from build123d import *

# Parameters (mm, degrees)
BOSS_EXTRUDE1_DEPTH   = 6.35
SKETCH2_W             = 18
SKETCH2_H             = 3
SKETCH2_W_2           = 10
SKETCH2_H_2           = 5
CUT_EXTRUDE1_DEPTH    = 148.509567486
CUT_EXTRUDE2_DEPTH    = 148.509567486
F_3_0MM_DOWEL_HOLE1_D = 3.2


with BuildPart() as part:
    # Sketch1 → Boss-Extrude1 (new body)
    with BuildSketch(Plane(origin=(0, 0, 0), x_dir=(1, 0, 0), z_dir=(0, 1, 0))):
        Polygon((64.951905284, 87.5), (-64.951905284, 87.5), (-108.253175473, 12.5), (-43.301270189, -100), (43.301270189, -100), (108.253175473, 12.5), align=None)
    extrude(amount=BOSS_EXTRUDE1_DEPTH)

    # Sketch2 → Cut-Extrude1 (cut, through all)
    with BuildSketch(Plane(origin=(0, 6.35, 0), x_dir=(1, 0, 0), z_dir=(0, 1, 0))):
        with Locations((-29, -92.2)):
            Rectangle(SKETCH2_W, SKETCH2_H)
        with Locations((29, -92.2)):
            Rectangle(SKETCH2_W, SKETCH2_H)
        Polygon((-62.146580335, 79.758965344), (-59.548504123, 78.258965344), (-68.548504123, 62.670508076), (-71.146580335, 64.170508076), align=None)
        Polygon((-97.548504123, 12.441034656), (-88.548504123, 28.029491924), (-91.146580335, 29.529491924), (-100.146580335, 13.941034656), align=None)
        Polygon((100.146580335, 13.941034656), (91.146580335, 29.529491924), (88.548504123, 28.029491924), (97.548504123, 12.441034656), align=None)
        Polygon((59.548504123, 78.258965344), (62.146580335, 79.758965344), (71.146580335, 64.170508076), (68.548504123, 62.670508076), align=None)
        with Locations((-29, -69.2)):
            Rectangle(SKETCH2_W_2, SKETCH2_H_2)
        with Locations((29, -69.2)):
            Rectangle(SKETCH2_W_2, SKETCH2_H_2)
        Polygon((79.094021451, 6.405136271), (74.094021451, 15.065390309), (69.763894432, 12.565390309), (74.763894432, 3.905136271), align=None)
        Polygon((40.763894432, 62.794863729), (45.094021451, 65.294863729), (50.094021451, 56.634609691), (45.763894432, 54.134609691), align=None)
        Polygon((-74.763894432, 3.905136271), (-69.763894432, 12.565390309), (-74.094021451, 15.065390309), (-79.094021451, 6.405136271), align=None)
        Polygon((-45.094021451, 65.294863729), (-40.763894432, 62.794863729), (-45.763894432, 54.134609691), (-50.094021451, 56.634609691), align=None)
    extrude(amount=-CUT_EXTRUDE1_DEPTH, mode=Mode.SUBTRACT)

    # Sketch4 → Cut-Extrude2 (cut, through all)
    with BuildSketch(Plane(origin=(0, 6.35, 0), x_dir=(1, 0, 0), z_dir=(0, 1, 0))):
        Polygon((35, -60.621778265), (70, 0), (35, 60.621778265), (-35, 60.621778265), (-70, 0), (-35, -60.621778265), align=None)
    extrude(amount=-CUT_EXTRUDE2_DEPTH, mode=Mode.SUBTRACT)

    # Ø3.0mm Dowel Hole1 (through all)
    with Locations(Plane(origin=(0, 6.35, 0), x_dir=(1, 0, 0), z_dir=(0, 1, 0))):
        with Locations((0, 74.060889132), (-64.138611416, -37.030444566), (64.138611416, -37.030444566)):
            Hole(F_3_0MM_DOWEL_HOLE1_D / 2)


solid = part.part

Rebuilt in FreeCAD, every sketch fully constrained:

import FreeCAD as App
import Part
import Sketcher
Q = App.Units.Quantity

doc = App.newDocument("Part")
body = doc.addObject("PartDesign::Body", "Body")

sketch1 = body.newObject("Sketcher::SketchObject", "Sketch")
sketch1.AttachmentSupport = (doc.getObject("XZ_Plane"), [""])
sketch1.MapMode = "FlatFace"
sketch1.addGeometry([
    Part.LineSegment(App.Vector(65, -88, 0), App.Vector(-65, -88, 0)),
    Part.LineSegment(App.Vector(-65, -88, 0), App.Vector(-108, -12, 0)),
    Part.LineSegment(App.Vector(-108, -12, 0), App.Vector(-43, 100, 0)),
    Part.LineSegment(App.Vector(-43, 100, 0), App.Vector(43, 100, 0)),
    Part.LineSegment(App.Vector(43, 100, 0), App.Vector(108, -12, 0)),
    Part.LineSegment(App.Vector(108, -12, 0), App.Vector(65, -88, 0)),
], False)
sketch1.addConstraint([
    Sketcher.Constraint("Coincident", 0, 2, 1, 1),
    Sketcher.Constraint("Coincident", 1, 2, 2, 1),
    Sketcher.Constraint("Coincident", 2, 2, 3, 1),
    Sketcher.Constraint("Coincident", 3, 2, 4, 1),
    Sketcher.Constraint("Coincident", 4, 2, 5, 1),
    Sketcher.Constraint("Coincident", 5, 2, 0, 1),
    Sketcher.Constraint("Horizontal", 0),
    Sketcher.Constraint("Horizontal", 3),
    Sketcher.Constraint("Symmetric", 1, 2, 4, 2, -2),
    Sketcher.Constraint("Parallel", 1, 4),
    Sketcher.Constraint("Parallel", 2, 5),
    Sketcher.Constraint("Equal", 2, 4),
    Sketcher.Constraint("Angle", 1, Q("120 deg")),
    Sketcher.Constraint("DistanceY", -1, 1, 2, 2, 100.0),
    Sketcher.Constraint("DistanceY", 0, 2, 1, 2, 75.0),
    Sketcher.Constraint("DistanceY", 0, 2, -1, 1, 87.5),
    Sketcher.Constraint("DistanceX", 0, 2, 0, 1, 129.903811),
])
pad1 = body.newObject("PartDesign::Pad", "Pad")
pad1.Profile = sketch1
pad1.Length = 6.35
pad1.Reversed = True

sketch2 = body.newObject("Sketcher::SketchObject", "Sketch001")
sketch2.AttachmentSupport = (doc.getObject("XZ_Plane"), [""])
sketch2.MapMode = "FlatFace"
sketch2.AttachmentOffset = App.Placement(App.Vector(0, 0, -6.35), App.Rotation())
sketch2.addGeometry([
    Part.LineSegment(App.Vector(-38, 90.7, 0), App.Vector(-38, 93.7, 0)),
    Part.LineSegment(App.Vector(-38, 93.7, 0), App.Vector(-20, 93.7, 0)),
    Part.LineSegment(App.Vector(-20, 93.7, 0), App.Vector(-20, 90.7, 0)),
    Part.LineSegment(App.Vector(-20, 90.7, 0), App.Vector(-38, 90.7, 0)),
    Part.LineSegment(App.Vector(20, 90.7, 0), App.Vector(20, 93.7, 0)),
    Part.LineSegment(App.Vector(20, 93.7, 0), App.Vector(38, 93.7, 0)),
    Part.LineSegment(App.Vector(38, 93.7, 0), App.Vector(38, 90.7, 0)),
    Part.LineSegment(App.Vector(38, 90.7, 0), App.Vector(20, 90.7, 0)),
    Part.LineSegment(App.Vector(-59.5, -78.3, 0), App.Vector(-62.1, -79.8, 0)),
    Part.LineSegment(App.Vector(-62.1, -79.8, 0), App.Vector(-71.1, -64.2, 0)),
    Part.LineSegment(App.Vector(-71.1, -64.2, 0), App.Vector(-68.5, -62.7, 0)),
    Part.LineSegment(App.Vector(-68.5, -62.7, 0), App.Vector(-59.5, -78.3, 0)),
    Part.LineSegment(App.Vector(-97.5, -12.4, 0), App.Vector(-88.5, -28, 0)),
    Part.LineSegment(App.Vector(-88.5, -28, 0), App.Vector(-91.1, -29.5, 0)),
    Part.LineSegment(App.Vector(-91.1, -29.5, 0), App.Vector(-100.1, -13.9, 0)),
    Part.LineSegment(App.Vector(-100.1, -13.9, 0), App.Vector(-97.5, -12.4, 0)),
    Part.LineSegment(App.Vector(100.1, -13.9, 0), App.Vector(91.1, -29.5, 0)),
    Part.LineSegment(App.Vector(91.1, -29.5, 0), App.Vector(88.5, -28, 0)),
    Part.LineSegment(App.Vector(88.5, -28, 0), App.Vector(97.5, -12.4, 0)),
    Part.LineSegment(App.Vector(97.5, -12.4, 0), App.Vector(100.1, -13.9, 0)),
    Part.LineSegment(App.Vector(62.1, -79.8, 0), App.Vector(59.5, -78.3, 0)),
    Part.LineSegment(App.Vector(59.5, -78.3, 0), App.Vector(68.5, -62.7, 0)),
    Part.LineSegment(App.Vector(68.5, -62.7, 0), App.Vector(71.1, -64.2, 0)),
    Part.LineSegment(App.Vector(71.1, -64.2, 0), App.Vector(62.1, -79.8, 0)),
    Part.LineSegment(App.Vector(-34, 66.7, 0), App.Vector(-34, 71.7, 0)),
    Part.LineSegment(App.Vector(-34, 71.7, 0), App.Vector(-24, 71.7, 0)),
    Part.LineSegment(App.Vector(-24, 71.7, 0), App.Vector(-24, 66.7, 0)),
    Part.LineSegment(App.Vector(-24, 66.7, 0), App.Vector(-34, 66.7, 0)),
    Part.LineSegment(App.Vector(24, 66.7, 0), App.Vector(24, 71.7, 0)),
    Part.LineSegment(App.Vector(24, 71.7, 0), App.Vector(34, 71.7, 0)),
    Part.LineSegment(App.Vector(34, 71.7, 0), App.Vector(34, 66.7, 0)),
    Part.LineSegment(App.Vector(34, 66.7, 0), App.Vector(24, 66.7, 0)),
    Part.LineSegment(App.Vector(79.1, -6.4, 0), App.Vector(74.1, -15.1, 0)),
    Part.LineSegment(App.Vector(74.1, -15.1, 0), App.Vector(69.8, -12.6, 0)),
    Part.LineSegment(App.Vector(69.8, -12.6, 0), App.Vector(74.8, -3.9, 0)),
    Part.LineSegment(App.Vector(74.8, -3.9, 0), App.Vector(79.1, -6.4, 0)),
    Part.LineSegment(App.Vector(45.1, -65.3, 0), App.Vector(40.8, -62.8, 0)),
    Part.LineSegment(App.Vector(40.8, -62.8, 0), App.Vector(45.8, -54.1, 0)),
    Part.LineSegment(App.Vector(45.8, -54.1, 0), App.Vector(50.1, -56.6, 0)),
    Part.LineSegment(App.Vector(50.1, -56.6, 0), App.Vector(45.1, -65.3, 0)),
    Part.LineSegment(App.Vector(-74.8, -3.9, 0), App.Vector(-69.8, -12.6, 0)),
    Part.LineSegment(App.Vector(-69.8, -12.6, 0), App.Vector(-74.1, -15.1, 0)),
    Part.LineSegment(App.Vector(-74.1, -15.1, 0), App.Vector(-79.1, -6.4, 0)),
    Part.LineSegment(App.Vector(-79.1, -6.4, 0), App.Vector(-74.8, -3.9, 0)),
    Part.LineSegment(App.Vector(-40.8, -62.8, 0), App.Vector(-45.1, -65.3, 0)),
    Part.LineSegment(App.Vector(-45.1, -65.3, 0), App.Vector(-50.1, -56.6, 0)),
    Part.LineSegment(App.Vector(-50.1, -56.6, 0), App.Vector(-45.8, -54.1, 0)),
    Part.LineSegment(App.Vector(-45.8, -54.1, 0), App.Vector(-40.8, -62.8, 0)),
], False)
sketch2.addConstraint([
    Sketcher.Constraint("Coincident", 0, 2, 1, 1),
    Sketcher.Constraint("Coincident", 1, 2, 2, 1),
    Sketcher.Constraint("Coincident", 2, 2, 3, 1),
    Sketcher.Constraint("Coincident", 3, 2, 0, 1),
    Sketcher.Constraint("Coincident", 4, 2, 5, 1),
    Sketcher.Constraint("Coincident", 5, 2, 6, 1),
    Sketcher.Constraint("Coincident", 6, 2, 7, 1),
    Sketcher.Constraint("Coincident", 7, 2, 4, 1),
    Sketcher.Constraint("Coincident", 8, 2, 9, 1),
    Sketcher.Constraint("Coincident", 9, 2, 10, 1),
    Sketcher.Constraint("Coincident", 10, 2, 11, 1),
    Sketcher.Constraint("Coincident", 11, 2, 8, 1),
    Sketcher.Constraint("Coincident", 12, 2, 13, 1),
    Sketcher.Constraint("Coincident", 13, 2, 14, 1),
    Sketcher.Constraint("Coincident", 14, 2, 15, 1),
    Sketcher.Constraint("Coincident", 15, 2, 12, 1),
    Sketcher.Constraint("Coincident", 16, 2, 17, 1),
    Sketcher.Constraint("Coincident", 17, 2, 18, 1),
    Sketcher.Constraint("Coincident", 18, 2, 19, 1),
    Sketcher.Constraint("Coincident", 19, 2, 16, 1),
    Sketcher.Constraint("Coincident", 20, 2, 21, 1),
    Sketcher.Constraint("Coincident", 21, 2, 22, 1),
    Sketcher.Constraint("Coincident", 22, 2, 23, 1),
    Sketcher.Constraint("Coincident", 23, 2, 20, 1),
    Sketcher.Constraint("Coincident", 24, 2, 25, 1),
    Sketcher.Constraint("Coincident", 25, 2, 26, 1),
    Sketcher.Constraint("Coincident", 26, 2, 27, 1),
    Sketcher.Constraint("Coincident", 27, 2, 24, 1),
    Sketcher.Constraint("Coincident", 28, 2, 29, 1),
    Sketcher.Constraint("Coincident", 29, 2, 30, 1),
    Sketcher.Constraint("Coincident", 30, 2, 31, 1),
    Sketcher.Constraint("Coincident", 31, 2, 28, 1),
    Sketcher.Constraint("Coincident", 32, 2, 33, 1),
    Sketcher.Constraint("Coincident", 33, 2, 34, 1),
    Sketcher.Constraint("Coincident", 34, 2, 35, 1),
    Sketcher.Constraint("Coincident", 35, 2, 32, 1),
    Sketcher.Constraint("Coincident", 36, 2, 37, 1),
    Sketcher.Constraint("Coincident", 37, 2, 38, 1),
    Sketcher.Constraint("Coincident", 38, 2, 39, 1),
    Sketcher.Constraint("Coincident", 39, 2, 36, 1),
    Sketcher.Constraint("Coincident", 40, 2, 41, 1),
    Sketcher.Constraint("Coincident", 41, 2, 42, 1),
    Sketcher.Constraint("Coincident", 42, 2, 43, 1),
    Sketcher.Constraint("Coincident", 43, 2, 40, 1),
    Sketcher.Constraint("Coincident", 44, 2, 45, 1),
    Sketcher.Constraint("Coincident", 45, 2, 46, 1),
    Sketcher.Constraint("Coincident", 46, 2, 47, 1),
    Sketcher.Constraint("Coincident", 47, 2, 44, 1),
    Sketcher.Constraint("Vertical", 0),
    Sketcher.Constraint("Horizontal", 1),
    Sketcher.Constraint("Vertical", 2),
    Sketcher.Constraint("Horizontal", 3),
    Sketcher.Constraint("Vertical", 4),
    Sketcher.Constraint("Horizontal", 5),
    Sketcher.Constraint("Vertical", 6),
    Sketcher.Constraint("Horizontal", 7),
    Sketcher.Constraint("Vertical", 24),
    Sketcher.Constraint("Horizontal", 25),
    Sketcher.Constraint("Vertical", 26),
    Sketcher.Constraint("Horizontal", 27),
    Sketcher.Constraint("Vertical", 28),
    Sketcher.Constraint("Horizontal", 29),
    Sketcher.Constraint("Vertical", 30),
    Sketcher.Constraint("Horizontal", 31),
    Sketcher.Constraint("Symmetric", 1, 2, 4, 2, -2),
    Sketcher.Constraint("Symmetric", 3, 2, 6, 2, -2),
    Sketcher.Constraint("Symmetric", 13, 2, 16, 2, -2),
    Sketcher.Constraint("Symmetric", 12, 2, 17, 2, -2),
    Sketcher.Constraint("Symmetric", 15, 2, 18, 2, -2),
    Sketcher.Constraint("Symmetric", 14, 2, 19, 2, -2),
    Sketcher.Constraint("Symmetric", 11, 2, 20, 2, -2),
    Sketcher.Constraint("Symmetric", 10, 2, 21, 2, -2),
    Sketcher.Constraint("Symmetric", 9, 2, 22, 2, -2),
    Sketcher.Constraint("Symmetric", 8, 2, 23, 2, -2),
    Sketcher.Constraint("Symmetric", 25, 2, 28, 2, -2),
    Sketcher.Constraint("Symmetric", 27, 2, 30, 2, -2),
    Sketcher.Constraint("Symmetric", 33, 2, 40, 2, -2),
    Sketcher.Constraint("Symmetric", 32, 2, 41, 2, -2),
    Sketcher.Constraint("Symmetric", 35, 2, 42, 2, -2),
    Sketcher.Constraint("Symmetric", 34, 2, 43, 2, -2),
    Sketcher.Constraint("Symmetric", 39, 2, 44, 2, -2),
    Sketcher.Constraint("Symmetric", 38, 2, 45, 2, -2),
    Sketcher.Constraint("Symmetric", 37, 2, 46, 2, -2),
    Sketcher.Constraint("Symmetric", 36, 2, 47, 2, -2),
    Sketcher.Constraint("Perpendicular", 8, 9),
    Sketcher.Constraint("Perpendicular", 9, 10),
    Sketcher.Constraint("Perpendicular", 10, 11),
    Sketcher.Constraint("Parallel", 11, 12),
    Sketcher.Constraint("Perpendicular", 12, 13),
    Sketcher.Constraint("Perpendicular", 13, 14),
    Sketcher.Constraint("Perpendicular", 14, 15),
    Sketcher.Constraint("Parallel", 23, 32),
    Sketcher.Constraint("Perpendicular", 32, 33),
    Sketcher.Constraint("Perpendicular", 33, 34),
    Sketcher.Constraint("Perpendicular", 34, 35),
    Sketcher.Constraint("Parallel", 35, 36),
    Sketcher.Constraint("Perpendicular", 36, 37),
    Sketcher.Constraint("Perpendicular", 37, 38),
    Sketcher.Constraint("Perpendicular", 38, 39),
    Sketcher.Constraint("Equal", 11, 12),
    Sketcher.Constraint("Equal", 10, 13),
    Sketcher.Constraint("Equal", 35, 36),
    Sketcher.Constraint("Equal", 34, 37),
    Sketcher.Constraint("DistanceX", 1, 1, 1, 2, 18.0),
    Sketcher.Constraint("DistanceX", 25, 1, 25, 2, 10.0),
    Sketcher.Constraint("DistanceY", 0, 1, 0, 2, 3.0),
    Sketcher.Constraint("DistanceY", 24, 1, 24, 2, 5.0),
    Sketcher.Constraint("Angle", 8, Q("-150 deg")),
    Sketcher.Constraint("Distance", 8, 3.0),
    Sketcher.Constraint("Distance", 9, 18.0),
    Sketcher.Constraint("Distance", 32, 10.0),
    Sketcher.Constraint("Distance", 33, 5.0),
    Sketcher.Constraint("DistanceX", 0, 2, -1, 1, 38.0),
    Sketcher.Constraint("DistanceX", 24, 2, -1, 1, 34.0),
    Sketcher.Constraint("DistanceX", 12, 2, 10, 2, 20.0),
    Sketcher.Constraint("DistanceY", 24, 2, 3, 2, 19.0),
    Sketcher.Constraint("DistanceX", 36, 2, 33, 2, 29.0),
    Sketcher.Constraint("DistanceY", -1, 1, 0, 2, 93.7),
    Sketcher.Constraint("DistanceY", 17, 2, 32, 2, 12.964102),
    Sketcher.Constraint("DistanceY", 20, 2, 36, 2, 15.464102),
    Sketcher.Constraint("DistanceX", 8, 2, -1, 1, 62.14658),
    Sketcher.Constraint("DistanceY", 9, 2, -1, 1, 64.170508),
    Sketcher.Constraint("DistanceY", 12, 2, -1, 1, 28.029492),
    Sketcher.Constraint("DistanceX", -1, 1, 32, 2, 74.094021),
])
pocket1 = body.newObject("PartDesign::Pocket", "Pocket")
pocket1.Profile = sketch2
pocket1.Type = "ThroughAll"
pocket1.Reversed = True

sketch3 = body.newObject("Sketcher::SketchObject", "Sketch002")
sketch3.AttachmentSupport = (doc.getObject("XZ_Plane"), [""])
sketch3.MapMode = "FlatFace"
sketch3.AttachmentOffset = App.Placement(App.Vector(0, 0, -6.35), App.Rotation())
sketch3.addGeometry([
    Part.LineSegment(App.Vector(35, 61, 0), App.Vector(70, 0, 0)),
    Part.LineSegment(App.Vector(70, 0, 0), App.Vector(35, -61, 0)),
    Part.LineSegment(App.Vector(35, -61, 0), App.Vector(-35, -61, 0)),
    Part.LineSegment(App.Vector(-35, -61, 0), App.Vector(-70, 0, 0)),
    Part.LineSegment(App.Vector(-70, 0, 0), App.Vector(-35, 61, 0)),
    Part.LineSegment(App.Vector(-35, 61, 0), App.Vector(35, 61, 0)),
], False)
sketch3.addConstraint([
    Sketcher.Constraint("Coincident", 0, 2, 1, 1),
    Sketcher.Constraint("Coincident", 1, 2, 2, 1),
    Sketcher.Constraint("Coincident", 2, 2, 3, 1),
    Sketcher.Constraint("Coincident", 3, 2, 4, 1),
    Sketcher.Constraint("Coincident", 4, 2, 5, 1),
    Sketcher.Constraint("Coincident", 5, 2, 0, 1),
    Sketcher.Constraint("Horizontal", 2),
    Sketcher.Constraint("Horizontal", 5),
    Sketcher.Constraint("Symmetric", 0, 2, 3, 2, -1, 1),
    Sketcher.Constraint("Symmetric", 1, 2, 4, 2, -1, 1),
    Sketcher.Constraint("PointOnObject", 0, 2, -1),
    Sketcher.Constraint("Parallel", 0, 3),
    Sketcher.Constraint("Vertical", 2, 2, 4, 2),
    Sketcher.Constraint("DistanceX", 2, 2, 2, 1, 70.0),
    Sketcher.Constraint("Angle", 0, Q("-60 deg")),
    Sketcher.Constraint("Distance", 0, 70.0),
])
pocket2 = body.newObject("PartDesign::Pocket", "Pocket001")
pocket2.Profile = sketch3
pocket2.Type = "ThroughAll"
pocket2.Reversed = True

sketch4 = body.newObject("Sketcher::SketchObject", "Sketch003")
sketch4.AttachmentSupport = (doc.getObject("XZ_Plane"), [""])
sketch4.MapMode = "FlatFace"
sketch4.AttachmentOffset = App.Placement(App.Vector(0, 0, -6.35), App.Rotation())
sketch4.addGeometry([
    Part.Circle(App.Vector(0, -74.1, 0), App.Vector(0, 0, 1), 1.6),
    Part.Circle(App.Vector(-64.1, 37, 0), App.Vector(0, 0, 1), 1.6),
    Part.Circle(App.Vector(64.1, 37, 0), App.Vector(0, 0, 1), 1.6),
], False)
sketch4.addConstraint([
    Sketcher.Constraint("Equal", 0, 1),
    Sketcher.Constraint("Equal", 1, 2),
    Sketcher.Constraint("Symmetric", 1, 3, 2, 3, -2),
    Sketcher.Constraint("PointOnObject", 0, 3, -2),
    Sketcher.Constraint("Diameter", 0, 3.2),
    Sketcher.Constraint("DistanceY", 0, 3, -1, 1, 74.060889),
    Sketcher.Constraint("DistanceX", 1, 3, -1, 1, 64.138611),
    Sketcher.Constraint("DistanceY", -1, 1, 1, 3, 37.030445),
])
doc.recompute()
hole = body.newObject("PartDesign::Hole", "Hole")
hole.Profile = sketch4
hole.ThreadType = "None"
hole.Diameter = 3.2
hole.DepthType = "ThroughAll"
hole.Reversed = True

doc.recompute()
